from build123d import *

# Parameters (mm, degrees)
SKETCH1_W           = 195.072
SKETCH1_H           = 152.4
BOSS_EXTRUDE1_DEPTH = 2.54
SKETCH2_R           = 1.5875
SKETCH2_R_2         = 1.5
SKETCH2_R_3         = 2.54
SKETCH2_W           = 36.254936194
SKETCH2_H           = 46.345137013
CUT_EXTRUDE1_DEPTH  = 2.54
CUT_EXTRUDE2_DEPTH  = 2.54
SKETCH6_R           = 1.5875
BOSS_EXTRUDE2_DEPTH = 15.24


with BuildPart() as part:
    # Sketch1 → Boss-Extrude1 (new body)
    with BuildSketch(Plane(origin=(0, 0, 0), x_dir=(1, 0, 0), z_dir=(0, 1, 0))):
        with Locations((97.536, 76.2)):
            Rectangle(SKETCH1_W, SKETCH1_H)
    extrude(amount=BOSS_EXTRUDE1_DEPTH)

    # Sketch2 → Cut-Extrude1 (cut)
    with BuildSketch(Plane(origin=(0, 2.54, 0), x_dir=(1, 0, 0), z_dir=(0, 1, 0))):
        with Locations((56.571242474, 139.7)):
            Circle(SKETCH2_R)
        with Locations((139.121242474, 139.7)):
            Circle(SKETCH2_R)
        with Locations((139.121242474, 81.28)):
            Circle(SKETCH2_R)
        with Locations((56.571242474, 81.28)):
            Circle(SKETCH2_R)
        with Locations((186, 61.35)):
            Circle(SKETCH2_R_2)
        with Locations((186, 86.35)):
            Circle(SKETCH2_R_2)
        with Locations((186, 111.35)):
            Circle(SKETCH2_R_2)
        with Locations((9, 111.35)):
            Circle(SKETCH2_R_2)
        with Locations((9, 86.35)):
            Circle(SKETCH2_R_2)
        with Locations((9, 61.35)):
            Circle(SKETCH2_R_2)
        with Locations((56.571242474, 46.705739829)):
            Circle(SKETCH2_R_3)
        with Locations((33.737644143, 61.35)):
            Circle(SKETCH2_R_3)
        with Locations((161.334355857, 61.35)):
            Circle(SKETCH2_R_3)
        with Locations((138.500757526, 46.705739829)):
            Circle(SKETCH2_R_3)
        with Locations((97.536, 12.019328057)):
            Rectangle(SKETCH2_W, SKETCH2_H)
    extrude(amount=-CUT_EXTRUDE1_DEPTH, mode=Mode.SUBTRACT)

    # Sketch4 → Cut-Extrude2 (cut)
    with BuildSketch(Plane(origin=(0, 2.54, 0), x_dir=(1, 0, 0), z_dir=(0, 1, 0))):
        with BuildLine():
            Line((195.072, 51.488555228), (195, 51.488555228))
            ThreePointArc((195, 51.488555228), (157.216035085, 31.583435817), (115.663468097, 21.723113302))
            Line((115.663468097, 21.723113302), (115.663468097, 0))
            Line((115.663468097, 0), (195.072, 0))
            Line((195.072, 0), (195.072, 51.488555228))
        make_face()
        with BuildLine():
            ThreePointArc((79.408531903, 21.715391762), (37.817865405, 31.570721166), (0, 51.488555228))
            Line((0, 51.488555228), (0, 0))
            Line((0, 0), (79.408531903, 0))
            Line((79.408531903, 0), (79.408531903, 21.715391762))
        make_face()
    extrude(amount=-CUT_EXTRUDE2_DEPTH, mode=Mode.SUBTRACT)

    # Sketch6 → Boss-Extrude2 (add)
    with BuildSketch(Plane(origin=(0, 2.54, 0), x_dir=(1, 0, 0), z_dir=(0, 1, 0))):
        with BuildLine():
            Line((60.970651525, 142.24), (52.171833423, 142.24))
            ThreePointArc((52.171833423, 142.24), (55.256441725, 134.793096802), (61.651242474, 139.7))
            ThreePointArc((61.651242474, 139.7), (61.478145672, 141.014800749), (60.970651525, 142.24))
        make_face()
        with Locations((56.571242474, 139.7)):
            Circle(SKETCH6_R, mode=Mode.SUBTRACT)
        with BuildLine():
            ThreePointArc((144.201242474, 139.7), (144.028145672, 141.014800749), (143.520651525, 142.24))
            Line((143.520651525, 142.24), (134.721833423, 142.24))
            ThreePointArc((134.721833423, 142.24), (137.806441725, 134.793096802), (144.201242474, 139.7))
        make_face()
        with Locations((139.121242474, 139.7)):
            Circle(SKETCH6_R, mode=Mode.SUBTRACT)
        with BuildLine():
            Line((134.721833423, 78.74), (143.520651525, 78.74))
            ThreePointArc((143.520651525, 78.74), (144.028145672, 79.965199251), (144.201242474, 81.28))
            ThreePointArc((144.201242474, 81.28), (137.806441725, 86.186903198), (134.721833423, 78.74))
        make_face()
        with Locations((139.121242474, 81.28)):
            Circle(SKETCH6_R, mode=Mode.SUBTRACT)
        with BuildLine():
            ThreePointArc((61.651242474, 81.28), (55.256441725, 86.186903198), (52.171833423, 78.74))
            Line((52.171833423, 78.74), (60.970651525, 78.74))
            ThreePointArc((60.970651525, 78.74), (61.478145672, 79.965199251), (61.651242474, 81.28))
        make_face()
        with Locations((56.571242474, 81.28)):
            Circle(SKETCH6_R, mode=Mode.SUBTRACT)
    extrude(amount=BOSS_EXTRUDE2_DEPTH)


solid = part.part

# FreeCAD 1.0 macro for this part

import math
import FreeCAD as App
import Part
import Sketcher

V = App.Vector
Q = App.Units.Quantity

doc = App.newDocument("Part")
params = doc.addObject("Spreadsheet::Sheet", "Params")
for row, (alias, value) in enumerate([
    ("sketch1_height", "6 in"),
    ("sketch1_width", "7.68 in"),
    ("pad1_length", "0.1 in"),
    ("sketch2_diameter", "0.2 in"),
    ("sketch2_diameter2", "0.125 in"),
    ("pocket1_length", "0.1 in"),
    ("pocket2_length", "0.1 in"),
    ("sketch4_radius", "0.2 in"),
    ("sketch4_diameter", "0.125 in"),
    ("pad2_length", "0.6 in"),
], start=1):
    params.set(f"A{row}", alias)
    params.set(f"B{row}", "=" + value)
    params.setAlias(f"B{row}", alias)

body = doc.addObject("PartDesign::Body", "Body")

# Sketch on XZ plane
sketch1 = body.newObject("Sketcher::SketchObject", "Sketch")
sketch1.AttachmentSupport = (doc.getObject("XZ_Plane"), [""])
sketch1.MapMode = "FlatFace"
sketch1.addGeometry(Part.LineSegment(V(0, -152, 0), V(0, 0, 0)), False)
sketch1.addGeometry(Part.LineSegment(V(0, 0, 0), V(195, 0, 0)), False)
sketch1.addGeometry(Part.LineSegment(V(195, 0, 0), V(195, -152, 0)), False)
sketch1.addGeometry(Part.LineSegment(V(195, -152, 0), V(0, -152, 0)), False)
sketch1.addConstraint(Sketcher.Constraint("Coincident", 0, 2, 1, 1))
sketch1.addConstraint(Sketcher.Constraint("Coincident", 1, 2, 2, 1))
sketch1.addConstraint(Sketcher.Constraint("Coincident", 2, 2, 3, 1))
sketch1.addConstraint(Sketcher.Constraint("Coincident", 3, 2, 0, 1))
sketch1.addConstraint(Sketcher.Constraint("Vertical", 0))
sketch1.addConstraint(Sketcher.Constraint("Horizontal", 1))
sketch1.addConstraint(Sketcher.Constraint("Vertical", 2))
sketch1.addConstraint(Sketcher.Constraint("Horizontal", 3))
sketch1.addConstraint(Sketcher.Constraint("Coincident", 0, 2, -1, 1))
sketch1.addConstraint(Sketcher.Constraint("DistanceY", 0, 1, 0, 2, Q("6 in")))
sketch1.addConstraint(Sketcher.Constraint("DistanceX", 1, 1, 1, 2, Q("7.68 in")))
sketch1.setExpression("Constraints[9]", "Params.sketch1_height")
sketch1.setExpression("Constraints[10]", "Params.sketch1_width")
pad1 = body.newObject("PartDesign::Pad", "Pad")
pad1.Profile = sketch1
pad1.setExpression("Length", "Params.pad1_length")
pad1.Reversed = True

# Sketch on XZ plane
sketch2 = body.newObject("Sketcher::SketchObject", "Sketch001")
sketch2.AttachmentSupport = (doc.getObject("XZ_Plane"), [""])
sketch2.MapMode = "FlatFace"
sketch2.AttachmentOffset = App.Placement(V(0, 0, -0.1 * 25.4), App.Rotation())
sketch2.addGeometry(Part.Circle(V(56.6, -139.7, 0), V(0, 0, 1), 1.6), False)
sketch2.addGeometry(Part.Circle(V(139.1, -139.7, 0), V(0, 0, 1), 1.6), False)
sketch2.addGeometry(Part.Circle(V(139.1, -81.3, 0), V(0, 0, 1), 1.6), False)
sketch2.addGeometry(Part.Circle(V(56.6, -81.3, 0), V(0, 0, 1), 1.6), False)
sketch2.addGeometry(Part.Circle(V(186, -61.4, 0), V(0, 0, 1), 1.5), False)
sketch2.addGeometry(Part.Circle(V(186, -86.3, 0), V(0, 0, 1), 1.5), False)
sketch2.addGeometry(Part.Circle(V(186, -111.3, 0), V(0, 0, 1), 1.5), False)
sketch2.addGeometry(Part.Circle(V(9, -111.3, 0), V(0, 0, 1), 1.5), False)
sketch2.addGeometry(Part.Circle(V(9, -86.3, 0), V(0, 0, 1), 1.5), False)
sketch2.addGeometry(Part.Circle(V(9, -61.4, 0), V(0, 0, 1), 1.5), False)
sketch2.addGeometry(Part.Circle(V(56.6, -46.7, 0), V(0, 0, 1), 2.5), False)
sketch2.addGeometry(Part.Circle(V(33.7, -61.4, 0), V(0, 0, 1), 2.5), False)
sketch2.addGeometry(Part.Circle(V(161.3, -61.4, 0), V(0, 0, 1), 2.5), False)
sketch2.addGeometry(Part.Circle(V(138.5, -46.7, 0), V(0, 0, 1), 2.5), False)
sketch2.addGeometry(Part.LineSegment(V(79.4, -35.2, 0), V(79.4, 11.2, 0)), False)
sketch2.addGeometry(Part.LineSegment(V(79.4, 11.2, 0), V(115.7, 11.2, 0)), False)
sketch2.addGeometry(Part.LineSegment(V(115.7, 11.2, 0), V(115.7, -35.2, 0)), False)
sketch2.addGeometry(Part.LineSegment(V(115.7, -35.2, 0), V(79.4, -35.2, 0)), False)
sketch2.addConstraint(Sketcher.Constraint("Coincident", 14, 2, 15, 1))
sketch2.addConstraint(Sketcher.Constraint("Coincident", 15, 2, 16, 1))
sketch2.addConstraint(Sketcher.Constraint("Coincident", 16, 2, 17, 1))
sketch2.addConstraint(Sketcher.Constraint("Coincident", 17, 2, 14, 1))
sketch2.addConstraint(Sketcher.Constraint("Vertical", 14))
sketch2.addConstraint(Sketcher.Constraint("Horizontal", 15))
sketch2.addConstraint(Sketcher.Constraint("Vertical", 16))
sketch2.addConstraint(Sketcher.Constraint("Horizontal", 17))
sketch2.addConstraint(Sketcher.Constraint("Equal", 0, 1))
sketch2.addConstraint(Sketcher.Constraint("Equal", 1, 2))
sketch2.addConstraint(Sketcher.Constraint("Equal", 2, 3))
sketch2.addConstraint(Sketcher.Constraint("Equal", 4, 5))
sketch2.addConstraint(Sketcher.Constraint("Equal", 5, 6))
sketch2.addConstraint(Sketcher.Constraint("Equal", 6, 7))
sketch2.addConstraint(Sketcher.Constraint("Equal", 7, 8))
sketch2.addConstraint(Sketcher.Constraint("Equal", 8, 9))
sketch2.addConstraint(Sketcher.Constraint("Equal", 10, 11))
sketch2.addConstraint(Sketcher.Constraint("Equal", 11, 12))
sketch2.addConstraint(Sketcher.Constraint("Equal", 12, 13))
sketch2.addConstraint(Sketcher.Constraint("Horizontal", 0, 3, 1, 3))
sketch2.addConstraint(Sketcher.Constraint("Horizontal", 2, 3, 3, 3))
sketch2.addConstraint(Sketcher.Constraint("Horizontal", 6, 3, 7, 3))
sketch2.addConstraint(Sketcher.Constraint("Horizontal", 5, 3, 8, 3))
sketch2.addConstraint(Sketcher.Constraint("Horizontal", 4, 3, 9, 3))
sketch2.addConstraint(Sketcher.Constraint("Horizontal", 9, 3, 11, 3))
sketch2.addConstraint(Sketcher.Constraint("Horizontal", 11, 3, 12, 3))
sketch2.addConstraint(Sketcher.Constraint("Horizontal", 10, 3, 13, 3))
sketch2.addConstraint(Sketcher.Constraint("Vertical", 1, 3, 2, 3))
sketch2.addConstraint(Sketcher.Constraint("Vertical", 0, 3, 3, 3))
sketch2.addConstraint(Sketcher.Constraint("Vertical", 4, 3, 5, 3))
sketch2.addConstraint(Sketcher.Constraint("Vertical", 5, 3, 6, 3))
sketch2.addConstraint(Sketcher.Constraint("Vertical", 7, 3, 8, 3))
sketch2.addConstraint(Sketcher.Constraint("Vertical", 8, 3, 9, 3))
sketch2.addConstraint(Sketcher.Constraint("Vertical", 3, 3, 10, 3))
sketch2.addConstraint(Sketcher.Constraint("Diameter", 10, Q("0.2 in")))
sketch2.addConstraint(Sketcher.Constraint("Diameter", 0, Q("0.125 in")))
sketch2.addConstraint(Sketcher.Constraint("DistanceY", 0, 3, -1, 1, Q("5.5 in")))
sketch2.addConstraint(Sketcher.Constraint("DistanceY", 2, 3, -1, 1, Q("3.2 in")))
sketch2.addConstraint(Sketcher.Constraint("Diameter", 4, Q("3 mm")))
sketch2.addConstraint(Sketcher.Constraint("DistanceX", 0, 3, 1, 3, Q("3.25 in")))
sketch2.addConstraint(Sketcher.Constraint("DistanceX", -1, 1, 4, 3, Q("186 mm")))
sketch2.addConstraint(Sketcher.Constraint("DistanceY", 4, 3, -1, 1, Q("61.35 mm")))
sketch2.addConstraint(Sketcher.Constraint("DistanceY", 5, 3, -1, 1, Q("86.35 mm")))
sketch2.addConstraint(Sketcher.Constraint("DistanceY", 6, 3, -1, 1, Q("111.35 mm")))
sketch2.addConstraint(Sketcher.Constraint("DistanceX", -1, 1, 7, 3, Q("9 mm")))
sketch2.addConstraint(Sketcher.Constraint("DistanceX", 11, 3, 10, 3, Q("22.833598 mm")))
sketch2.addConstraint(Sketcher.Constraint("DistanceX", 13, 3, 12, 3, Q("22.833598 mm")))
sketch2.addConstraint(Sketcher.Constraint("DistanceX", 15, 1, 15, 2, Q("36.254936 mm")))
sketch2.addConstraint(Sketcher.Constraint("DistanceY", 14, 1, 14, 2, Q("46.345137 mm")))
sketch2.addConstraint(Sketcher.Constraint("DistanceY", 10, 3, -1, 1, Q("46.70574 mm")))
sketch2.addConstraint(Sketcher.Constraint("DistanceX", -1, 1, 14, 2, Q("79.408532 mm")))
sketch2.addConstraint(Sketcher.Constraint("DistanceY", -1, 1, 14, 2, Q("11.15324 mm")))
sketch2.addConstraint(Sketcher.Constraint("DistanceX", 10, 3, 14, 2, Q("22.837289 mm")))
sketch2.addConstraint(Sketcher.Constraint("DistanceX", 15, 2, 13, 3, Q("22.837289 mm")))
sketch2.setExpression("Constraints[34]", "Params.sketch2_diameter")
sketch2.setExpression("Constraints[35]", "Params.sketch2_diameter2")
pocket1 = body.newObject("PartDesign::Pocket", "Pocket")
pocket1.Profile = sketch2
pocket1.setExpression("Length", "Params.pocket1_length")
pocket1.Reversed = True

# Sketch on XZ plane
sketch3 = body.newObject("Sketcher::SketchObject", "Sketch002")
sketch3.AttachmentSupport = (doc.getObject("XZ_Plane"), [""])
sketch3.MapMode = "FlatFace"
sketch3.AttachmentOffset = App.Placement(V(0, 0, -0.1 * 25.4), App.Rotation())
sketch3.addGeometry(Part.LineSegment(V(195.07, -51.49, 0), V(195, -51.49, 0)), False)
sketch3.addGeometry(Part.ArcOfCircle(Part.Circle(V(97.5, -190.75, 0), V(0, 0, 1), 170), math.radians(55), math.radians(84)), False)
sketch3.addGeometry(Part.LineSegment(V(115.66, -21.72, 0), V(115.66, 0, 0)), False)
sketch3.addGeometry(Part.LineSegment(V(115.66, 0, 0), V(195.07, 0, 0)), False)
sketch3.addGeometry(Part.LineSegment(V(195.07, 0, 0), V(195.07, -51.49, 0)), False)
sketch3.addGeometry(Part.ArcOfCircle(Part.Circle(V(97.5, -190.75, 0), V(0, 0, 1), 170), math.radians(96), math.radians(125)), False)
sketch3.addGeometry(Part.LineSegment(V(0, -51.49, 0), V(0, 0, 0)), False)
sketch3.addGeometry(Part.LineSegment(V(0, 0, 0), V(79.41, 0, 0)), False)
sketch3.addGeometry(Part.LineSegment(V(79.41, 0, 0), V(79.41, -21.72, 0)), False)
sketch3.addConstraint(Sketcher.Constraint("Coincident", 0, 2, 1, 1))
sketch3.addConstraint(Sketcher.Constraint("Coincident", 1, 2, 2, 1))
sketch3.addConstraint(Sketcher.Constraint("Coincident", 2, 2, 3, 1))
sketch3.addConstraint(Sketcher.Constraint("Coincident", 3, 2, 4, 1))
sketch3.addConstraint(Sketcher.Constraint("Coincident", 4, 2, 0, 1))
sketch3.addConstraint(Sketcher.Constraint("Coincident", 5, 2, 6, 1))
sketch3.addConstraint(Sketcher.Constraint("Coincident", 6, 2, 7, 1))
sketch3.addConstraint(Sketcher.Constraint("Coincident", 7, 2, 8, 1))
sketch3.addConstraint(Sketcher.Constraint("Coincident", 8, 2, 5, 1))
sketch3.addConstraint(Sketcher.Constraint("Horizontal", 0))
sketch3.addConstraint(Sketcher.Constraint("Vertical", 2))
sketch3.addConstraint(Sketcher.Constraint("Horizontal", 3))
sketch3.addConstraint(Sketcher.Constraint("Vertical", 4))
sketch3.addConstraint(Sketcher.Constraint("Vertical", 6))
sketch3.addConstraint(Sketcher.Constraint("Horizontal", 7))
sketch3.addConstraint(Sketcher.Constraint("Vertical", 8))
sketch3.addConstraint(Sketcher.Constraint("Coincident", 6, 2, -1, 1))
sketch3.addConstraint(Sketcher.Constraint("Coincident", 5, 3, 1, 3))
sketch3.addConstraint(Sketcher.Constraint("Equal", 1, 5))
sketch3.addConstraint(Sketcher.Constraint("PointOnObject", 2, 2, -1))
sketch3.addConstraint(Sketcher.Constraint("Horizontal", 4, 2, 5, 2))
sketch3.addConstraint(Sketcher.Constraint("Equal", 3, 7))
sketch3.addConstraint(Sketcher.Constraint("DistanceX", -1, 1, 3, 2, Q("7.68 in")))
sketch3.addConstraint(Sketcher.Constraint("Radius", 1, Q("170 mm")))
sketch3.addConstraint(Sketcher.Constraint("DistanceX", 0, 2, 0, 1, Q("0.072 mm")))
sketch3.addConstraint(Sketcher.Constraint("DistanceX", 3, 1, 3, 2, Q("79.408532 mm")))
sketch3.addConstraint(Sketcher.Constraint("DistanceY", 8, 2, 8, 1, Q("21.715392 mm")))
pocket2 = body.newObject("PartDesign::Pocket", "Pocket001")
pocket2.Profile = sketch3
pocket2.setExpression("Length", "Params.pocket2_length")
pocket2.Reversed = True

# Sketch on XZ plane
sketch4 = body.newObject("Sketcher::SketchObject", "Sketch003")
sketch4.AttachmentSupport = (doc.getObject("XZ_Plane"), [""])
sketch4.MapMode = "FlatFace"
sketch4.AttachmentOffset = App.Placement(V(0, 0, -0.1 * 25.4), App.Rotation())
sketch4.addGeometry(Part.LineSegment(V(61, -142.2, 0), V(52.2, -142.2, 0)), False)
sketch4.addGeometry(Part.ArcOfCircle(Part.Circle(V(56.6, -139.7, 0), V(0, 0, 1), 5.1), math.radians(0), math.radians(210)), False)
sketch4.addGeometry(Part.ArcOfCircle(Part.Circle(V(56.6, -139.7, 0), V(0, 0, 1), 5.1), math.radians(-30), math.radians(0)), False)
sketch4.addGeometry(Part.Circle(V(56.6, -139.7, 0), V(0, 0, 1), 1.6), False)
sketch4.addGeometry(Part.ArcOfCircle(Part.Circle(V(139.1, -139.7, 0), V(0, 0, 1), 5.1), math.radians(-30), math.radians(0)), False)
sketch4.addGeometry(Part.LineSegment(V(143.5, -142.2, 0), V(134.7, -142.2, 0)), False)
sketch4.addGeometry(Part.ArcOfCircle(Part.Circle(V(139.1, -139.7, 0), V(0, 0, 1), 5.1), math.radians(0), math.radians(210)), False)
sketch4.addGeometry(Part.Circle(V(139.1, -139.7, 0), V(0, 0, 1), 1.6), False)
sketch4.addGeometry(Part.LineSegment(V(134.7, -78.7, 0), V(143.5, -78.7, 0)), False)
sketch4.addGeometry(Part.ArcOfCircle(Part.Circle(V(139.1, -81.3, 0), V(0, 0, 1), 5.1), math.radians(0), math.radians(30)), False)
sketch4.addGeometry(Part.ArcOfCircle(Part.Circle(V(139.1, -81.3, 0), V(0, 0, 1), 5.1), math.radians(150), math.radians(360)), False)
sketch4.addGeometry(Part.Circle(V(139.1, -81.3, 0), V(0, 0, 1), 1.6), False)
sketch4.addGeometry(Part.ArcOfCircle(Part.Circle(V(56.6, -81.3, 0), V(0, 0, 1), 5.1), math.radians(150), math.radians(360)), False)
sketch4.addGeometry(Part.LineSegment(V(52.2, -78.7, 0), V(61, -78.7, 0)), False)
sketch4.addGeometry(Part.ArcOfCircle(Part.Circle(V(56.6, -81.3, 0), V(0, 0, 1), 5.1), math.radians(0), math.radians(30)), False)
sketch4.addGeometry(Part.Circle(V(56.6, -81.3, 0), V(0, 0, 1), 1.6), False)
sketch4.addConstraint(Sketcher.Constraint("Coincident", 0, 2, 1, 2))
sketch4.addConstraint(Sketcher.Constraint("Tangent", 1, 1, 2, 2))
sketch4.addConstraint(Sketcher.Constraint("Coincident", 2, 1, 0, 1))
sketch4.addConstraint(Sketcher.Constraint("Coincident", 4, 1, 5, 1))
sketch4.addConstraint(Sketcher.Constraint("Coincident", 5, 2, 6, 2))
sketch4.addConstraint(Sketcher.Constraint("Tangent", 6, 1, 4, 2))
sketch4.addConstraint(Sketcher.Constraint("Coincident", 8, 2, 9, 2))
sketch4.addConstraint(Sketcher.Constraint("Tangent", 9, 1, 10, 2))
sketch4.addConstraint(Sketcher.Constraint("Coincident", 10, 1, 8, 1))
sketch4.addConstraint(Sketcher.Constraint("Coincident", 12, 1, 13, 1))
sketch4.addConstraint(Sketcher.Constraint("Coincident", 13, 2, 14, 2))
sketch4.addConstraint(Sketcher.Constraint("Tangent", 14, 1, 12, 2))
sketch4.addConstraint(Sketcher.Constraint("Horizontal", 0))
sketch4.addConstraint(Sketcher.Constraint("Horizontal", 5))
sketch4.addConstraint(Sketcher.Constraint("Horizontal", 8))
sketch4.addConstraint(Sketcher.Constraint("Horizontal", 13))
sketch4.addConstraint(Sketcher.Constraint("Coincident", 3, 3, 1, 3))
sketch4.addConstraint(Sketcher.Constraint("Coincident", 7, 3, 4, 3))
sketch4.addConstraint(Sketcher.Constraint("Coincident", 11, 3, 9, 3))
sketch4.addConstraint(Sketcher.Constraint("Coincident", 15, 3, 12, 3))
sketch4.addConstraint(Sketcher.Constraint("Equal", 1, 2))
sketch4.addConstraint(Sketcher.Constraint("Equal", 2, 4))
sketch4.addConstraint(Sketcher.Constraint("Equal", 4, 6))
sketch4.addConstraint(Sketcher.Constraint("Equal", 3, 7))
sketch4.addConstraint(Sketcher.Constraint("Equal", 6, 9))
sketch4.addConstraint(Sketcher.Constraint("Equal", 9, 10))
sketch4.addConstraint(Sketcher.Constraint("Equal", 7, 11))
sketch4.addConstraint(Sketcher.Constraint("Equal", 10, 12))
sketch4.addConstraint(Sketcher.Constraint("Equal", 12, 14))
sketch4.addConstraint(Sketcher.Constraint("Equal", 11, 15))
sketch4.addConstraint(Sketcher.Constraint("Horizontal", 3, 3, 4, 3))
sketch4.addConstraint(Sketcher.Constraint("Horizontal", 11, 3, 12, 3))
sketch4.addConstraint(Sketcher.Constraint("Horizontal", 7, 3, 1, 1))
sketch4.addConstraint(Sketcher.Constraint("Horizontal", 2, 1, 4, 1))
sketch4.addConstraint(Sketcher.Constraint("Horizontal", 1, 1, 6, 1))
sketch4.addConstraint(Sketcher.Constraint("Horizontal", 15, 3, 9, 1))
sketch4.addConstraint(Sketcher.Constraint("Horizontal", 10, 1, 12, 1))
sketch4.addConstraint(Sketcher.Constraint("Horizontal", 9, 1, 14, 1))
sketch4.addConstraint(Sketcher.Constraint("Vertical", 7, 3, 9, 3))
sketch4.addConstraint(Sketcher.Constraint("Vertical", 3, 3, 12, 3))
sketch4.addConstraint(Sketcher.Constraint("Vertical", 4, 1, 8, 2))
sketch4.addConstraint(Sketcher.Constraint("Radius", 1, Q("0.2 in")))
sketch4.addConstraint(Sketcher.Constraint("Diameter", 3, Q("0.125 in")))
sketch4.addConstraint(Sketcher.Constraint("DistanceY", 1, 3, -1, 1, Q("5.5 in")))
sketch4.addConstraint(Sketcher.Constraint("DistanceY", 9, 3, -1, 1, Q("3.2 in")))
sketch4.addConstraint(Sketcher.Constraint("DistanceY", 0, 2, -1, 1, Q("5.6 in")))
sketch4.addConstraint(Sketcher.Constraint("DistanceX", 2, 3, 4, 3, Q("3.25 in")))
sketch4.addConstraint(Sketcher.Constraint("DistanceX", -1, 1, 2, 1, Q("60.970652 mm")))
sketch4.setExpression("Constraints[41]", "Params.sketch4_radius")
sketch4.setExpression("Constraints[42]", "Params.sketch4_diameter")
pad2 = body.newObject("PartDesign::Pad", "Pad001")
pad2.Profile = sketch4
pad2.setExpression("Length", "Params.pad2_length")
pad2.Reversed = True

doc.recompute()
